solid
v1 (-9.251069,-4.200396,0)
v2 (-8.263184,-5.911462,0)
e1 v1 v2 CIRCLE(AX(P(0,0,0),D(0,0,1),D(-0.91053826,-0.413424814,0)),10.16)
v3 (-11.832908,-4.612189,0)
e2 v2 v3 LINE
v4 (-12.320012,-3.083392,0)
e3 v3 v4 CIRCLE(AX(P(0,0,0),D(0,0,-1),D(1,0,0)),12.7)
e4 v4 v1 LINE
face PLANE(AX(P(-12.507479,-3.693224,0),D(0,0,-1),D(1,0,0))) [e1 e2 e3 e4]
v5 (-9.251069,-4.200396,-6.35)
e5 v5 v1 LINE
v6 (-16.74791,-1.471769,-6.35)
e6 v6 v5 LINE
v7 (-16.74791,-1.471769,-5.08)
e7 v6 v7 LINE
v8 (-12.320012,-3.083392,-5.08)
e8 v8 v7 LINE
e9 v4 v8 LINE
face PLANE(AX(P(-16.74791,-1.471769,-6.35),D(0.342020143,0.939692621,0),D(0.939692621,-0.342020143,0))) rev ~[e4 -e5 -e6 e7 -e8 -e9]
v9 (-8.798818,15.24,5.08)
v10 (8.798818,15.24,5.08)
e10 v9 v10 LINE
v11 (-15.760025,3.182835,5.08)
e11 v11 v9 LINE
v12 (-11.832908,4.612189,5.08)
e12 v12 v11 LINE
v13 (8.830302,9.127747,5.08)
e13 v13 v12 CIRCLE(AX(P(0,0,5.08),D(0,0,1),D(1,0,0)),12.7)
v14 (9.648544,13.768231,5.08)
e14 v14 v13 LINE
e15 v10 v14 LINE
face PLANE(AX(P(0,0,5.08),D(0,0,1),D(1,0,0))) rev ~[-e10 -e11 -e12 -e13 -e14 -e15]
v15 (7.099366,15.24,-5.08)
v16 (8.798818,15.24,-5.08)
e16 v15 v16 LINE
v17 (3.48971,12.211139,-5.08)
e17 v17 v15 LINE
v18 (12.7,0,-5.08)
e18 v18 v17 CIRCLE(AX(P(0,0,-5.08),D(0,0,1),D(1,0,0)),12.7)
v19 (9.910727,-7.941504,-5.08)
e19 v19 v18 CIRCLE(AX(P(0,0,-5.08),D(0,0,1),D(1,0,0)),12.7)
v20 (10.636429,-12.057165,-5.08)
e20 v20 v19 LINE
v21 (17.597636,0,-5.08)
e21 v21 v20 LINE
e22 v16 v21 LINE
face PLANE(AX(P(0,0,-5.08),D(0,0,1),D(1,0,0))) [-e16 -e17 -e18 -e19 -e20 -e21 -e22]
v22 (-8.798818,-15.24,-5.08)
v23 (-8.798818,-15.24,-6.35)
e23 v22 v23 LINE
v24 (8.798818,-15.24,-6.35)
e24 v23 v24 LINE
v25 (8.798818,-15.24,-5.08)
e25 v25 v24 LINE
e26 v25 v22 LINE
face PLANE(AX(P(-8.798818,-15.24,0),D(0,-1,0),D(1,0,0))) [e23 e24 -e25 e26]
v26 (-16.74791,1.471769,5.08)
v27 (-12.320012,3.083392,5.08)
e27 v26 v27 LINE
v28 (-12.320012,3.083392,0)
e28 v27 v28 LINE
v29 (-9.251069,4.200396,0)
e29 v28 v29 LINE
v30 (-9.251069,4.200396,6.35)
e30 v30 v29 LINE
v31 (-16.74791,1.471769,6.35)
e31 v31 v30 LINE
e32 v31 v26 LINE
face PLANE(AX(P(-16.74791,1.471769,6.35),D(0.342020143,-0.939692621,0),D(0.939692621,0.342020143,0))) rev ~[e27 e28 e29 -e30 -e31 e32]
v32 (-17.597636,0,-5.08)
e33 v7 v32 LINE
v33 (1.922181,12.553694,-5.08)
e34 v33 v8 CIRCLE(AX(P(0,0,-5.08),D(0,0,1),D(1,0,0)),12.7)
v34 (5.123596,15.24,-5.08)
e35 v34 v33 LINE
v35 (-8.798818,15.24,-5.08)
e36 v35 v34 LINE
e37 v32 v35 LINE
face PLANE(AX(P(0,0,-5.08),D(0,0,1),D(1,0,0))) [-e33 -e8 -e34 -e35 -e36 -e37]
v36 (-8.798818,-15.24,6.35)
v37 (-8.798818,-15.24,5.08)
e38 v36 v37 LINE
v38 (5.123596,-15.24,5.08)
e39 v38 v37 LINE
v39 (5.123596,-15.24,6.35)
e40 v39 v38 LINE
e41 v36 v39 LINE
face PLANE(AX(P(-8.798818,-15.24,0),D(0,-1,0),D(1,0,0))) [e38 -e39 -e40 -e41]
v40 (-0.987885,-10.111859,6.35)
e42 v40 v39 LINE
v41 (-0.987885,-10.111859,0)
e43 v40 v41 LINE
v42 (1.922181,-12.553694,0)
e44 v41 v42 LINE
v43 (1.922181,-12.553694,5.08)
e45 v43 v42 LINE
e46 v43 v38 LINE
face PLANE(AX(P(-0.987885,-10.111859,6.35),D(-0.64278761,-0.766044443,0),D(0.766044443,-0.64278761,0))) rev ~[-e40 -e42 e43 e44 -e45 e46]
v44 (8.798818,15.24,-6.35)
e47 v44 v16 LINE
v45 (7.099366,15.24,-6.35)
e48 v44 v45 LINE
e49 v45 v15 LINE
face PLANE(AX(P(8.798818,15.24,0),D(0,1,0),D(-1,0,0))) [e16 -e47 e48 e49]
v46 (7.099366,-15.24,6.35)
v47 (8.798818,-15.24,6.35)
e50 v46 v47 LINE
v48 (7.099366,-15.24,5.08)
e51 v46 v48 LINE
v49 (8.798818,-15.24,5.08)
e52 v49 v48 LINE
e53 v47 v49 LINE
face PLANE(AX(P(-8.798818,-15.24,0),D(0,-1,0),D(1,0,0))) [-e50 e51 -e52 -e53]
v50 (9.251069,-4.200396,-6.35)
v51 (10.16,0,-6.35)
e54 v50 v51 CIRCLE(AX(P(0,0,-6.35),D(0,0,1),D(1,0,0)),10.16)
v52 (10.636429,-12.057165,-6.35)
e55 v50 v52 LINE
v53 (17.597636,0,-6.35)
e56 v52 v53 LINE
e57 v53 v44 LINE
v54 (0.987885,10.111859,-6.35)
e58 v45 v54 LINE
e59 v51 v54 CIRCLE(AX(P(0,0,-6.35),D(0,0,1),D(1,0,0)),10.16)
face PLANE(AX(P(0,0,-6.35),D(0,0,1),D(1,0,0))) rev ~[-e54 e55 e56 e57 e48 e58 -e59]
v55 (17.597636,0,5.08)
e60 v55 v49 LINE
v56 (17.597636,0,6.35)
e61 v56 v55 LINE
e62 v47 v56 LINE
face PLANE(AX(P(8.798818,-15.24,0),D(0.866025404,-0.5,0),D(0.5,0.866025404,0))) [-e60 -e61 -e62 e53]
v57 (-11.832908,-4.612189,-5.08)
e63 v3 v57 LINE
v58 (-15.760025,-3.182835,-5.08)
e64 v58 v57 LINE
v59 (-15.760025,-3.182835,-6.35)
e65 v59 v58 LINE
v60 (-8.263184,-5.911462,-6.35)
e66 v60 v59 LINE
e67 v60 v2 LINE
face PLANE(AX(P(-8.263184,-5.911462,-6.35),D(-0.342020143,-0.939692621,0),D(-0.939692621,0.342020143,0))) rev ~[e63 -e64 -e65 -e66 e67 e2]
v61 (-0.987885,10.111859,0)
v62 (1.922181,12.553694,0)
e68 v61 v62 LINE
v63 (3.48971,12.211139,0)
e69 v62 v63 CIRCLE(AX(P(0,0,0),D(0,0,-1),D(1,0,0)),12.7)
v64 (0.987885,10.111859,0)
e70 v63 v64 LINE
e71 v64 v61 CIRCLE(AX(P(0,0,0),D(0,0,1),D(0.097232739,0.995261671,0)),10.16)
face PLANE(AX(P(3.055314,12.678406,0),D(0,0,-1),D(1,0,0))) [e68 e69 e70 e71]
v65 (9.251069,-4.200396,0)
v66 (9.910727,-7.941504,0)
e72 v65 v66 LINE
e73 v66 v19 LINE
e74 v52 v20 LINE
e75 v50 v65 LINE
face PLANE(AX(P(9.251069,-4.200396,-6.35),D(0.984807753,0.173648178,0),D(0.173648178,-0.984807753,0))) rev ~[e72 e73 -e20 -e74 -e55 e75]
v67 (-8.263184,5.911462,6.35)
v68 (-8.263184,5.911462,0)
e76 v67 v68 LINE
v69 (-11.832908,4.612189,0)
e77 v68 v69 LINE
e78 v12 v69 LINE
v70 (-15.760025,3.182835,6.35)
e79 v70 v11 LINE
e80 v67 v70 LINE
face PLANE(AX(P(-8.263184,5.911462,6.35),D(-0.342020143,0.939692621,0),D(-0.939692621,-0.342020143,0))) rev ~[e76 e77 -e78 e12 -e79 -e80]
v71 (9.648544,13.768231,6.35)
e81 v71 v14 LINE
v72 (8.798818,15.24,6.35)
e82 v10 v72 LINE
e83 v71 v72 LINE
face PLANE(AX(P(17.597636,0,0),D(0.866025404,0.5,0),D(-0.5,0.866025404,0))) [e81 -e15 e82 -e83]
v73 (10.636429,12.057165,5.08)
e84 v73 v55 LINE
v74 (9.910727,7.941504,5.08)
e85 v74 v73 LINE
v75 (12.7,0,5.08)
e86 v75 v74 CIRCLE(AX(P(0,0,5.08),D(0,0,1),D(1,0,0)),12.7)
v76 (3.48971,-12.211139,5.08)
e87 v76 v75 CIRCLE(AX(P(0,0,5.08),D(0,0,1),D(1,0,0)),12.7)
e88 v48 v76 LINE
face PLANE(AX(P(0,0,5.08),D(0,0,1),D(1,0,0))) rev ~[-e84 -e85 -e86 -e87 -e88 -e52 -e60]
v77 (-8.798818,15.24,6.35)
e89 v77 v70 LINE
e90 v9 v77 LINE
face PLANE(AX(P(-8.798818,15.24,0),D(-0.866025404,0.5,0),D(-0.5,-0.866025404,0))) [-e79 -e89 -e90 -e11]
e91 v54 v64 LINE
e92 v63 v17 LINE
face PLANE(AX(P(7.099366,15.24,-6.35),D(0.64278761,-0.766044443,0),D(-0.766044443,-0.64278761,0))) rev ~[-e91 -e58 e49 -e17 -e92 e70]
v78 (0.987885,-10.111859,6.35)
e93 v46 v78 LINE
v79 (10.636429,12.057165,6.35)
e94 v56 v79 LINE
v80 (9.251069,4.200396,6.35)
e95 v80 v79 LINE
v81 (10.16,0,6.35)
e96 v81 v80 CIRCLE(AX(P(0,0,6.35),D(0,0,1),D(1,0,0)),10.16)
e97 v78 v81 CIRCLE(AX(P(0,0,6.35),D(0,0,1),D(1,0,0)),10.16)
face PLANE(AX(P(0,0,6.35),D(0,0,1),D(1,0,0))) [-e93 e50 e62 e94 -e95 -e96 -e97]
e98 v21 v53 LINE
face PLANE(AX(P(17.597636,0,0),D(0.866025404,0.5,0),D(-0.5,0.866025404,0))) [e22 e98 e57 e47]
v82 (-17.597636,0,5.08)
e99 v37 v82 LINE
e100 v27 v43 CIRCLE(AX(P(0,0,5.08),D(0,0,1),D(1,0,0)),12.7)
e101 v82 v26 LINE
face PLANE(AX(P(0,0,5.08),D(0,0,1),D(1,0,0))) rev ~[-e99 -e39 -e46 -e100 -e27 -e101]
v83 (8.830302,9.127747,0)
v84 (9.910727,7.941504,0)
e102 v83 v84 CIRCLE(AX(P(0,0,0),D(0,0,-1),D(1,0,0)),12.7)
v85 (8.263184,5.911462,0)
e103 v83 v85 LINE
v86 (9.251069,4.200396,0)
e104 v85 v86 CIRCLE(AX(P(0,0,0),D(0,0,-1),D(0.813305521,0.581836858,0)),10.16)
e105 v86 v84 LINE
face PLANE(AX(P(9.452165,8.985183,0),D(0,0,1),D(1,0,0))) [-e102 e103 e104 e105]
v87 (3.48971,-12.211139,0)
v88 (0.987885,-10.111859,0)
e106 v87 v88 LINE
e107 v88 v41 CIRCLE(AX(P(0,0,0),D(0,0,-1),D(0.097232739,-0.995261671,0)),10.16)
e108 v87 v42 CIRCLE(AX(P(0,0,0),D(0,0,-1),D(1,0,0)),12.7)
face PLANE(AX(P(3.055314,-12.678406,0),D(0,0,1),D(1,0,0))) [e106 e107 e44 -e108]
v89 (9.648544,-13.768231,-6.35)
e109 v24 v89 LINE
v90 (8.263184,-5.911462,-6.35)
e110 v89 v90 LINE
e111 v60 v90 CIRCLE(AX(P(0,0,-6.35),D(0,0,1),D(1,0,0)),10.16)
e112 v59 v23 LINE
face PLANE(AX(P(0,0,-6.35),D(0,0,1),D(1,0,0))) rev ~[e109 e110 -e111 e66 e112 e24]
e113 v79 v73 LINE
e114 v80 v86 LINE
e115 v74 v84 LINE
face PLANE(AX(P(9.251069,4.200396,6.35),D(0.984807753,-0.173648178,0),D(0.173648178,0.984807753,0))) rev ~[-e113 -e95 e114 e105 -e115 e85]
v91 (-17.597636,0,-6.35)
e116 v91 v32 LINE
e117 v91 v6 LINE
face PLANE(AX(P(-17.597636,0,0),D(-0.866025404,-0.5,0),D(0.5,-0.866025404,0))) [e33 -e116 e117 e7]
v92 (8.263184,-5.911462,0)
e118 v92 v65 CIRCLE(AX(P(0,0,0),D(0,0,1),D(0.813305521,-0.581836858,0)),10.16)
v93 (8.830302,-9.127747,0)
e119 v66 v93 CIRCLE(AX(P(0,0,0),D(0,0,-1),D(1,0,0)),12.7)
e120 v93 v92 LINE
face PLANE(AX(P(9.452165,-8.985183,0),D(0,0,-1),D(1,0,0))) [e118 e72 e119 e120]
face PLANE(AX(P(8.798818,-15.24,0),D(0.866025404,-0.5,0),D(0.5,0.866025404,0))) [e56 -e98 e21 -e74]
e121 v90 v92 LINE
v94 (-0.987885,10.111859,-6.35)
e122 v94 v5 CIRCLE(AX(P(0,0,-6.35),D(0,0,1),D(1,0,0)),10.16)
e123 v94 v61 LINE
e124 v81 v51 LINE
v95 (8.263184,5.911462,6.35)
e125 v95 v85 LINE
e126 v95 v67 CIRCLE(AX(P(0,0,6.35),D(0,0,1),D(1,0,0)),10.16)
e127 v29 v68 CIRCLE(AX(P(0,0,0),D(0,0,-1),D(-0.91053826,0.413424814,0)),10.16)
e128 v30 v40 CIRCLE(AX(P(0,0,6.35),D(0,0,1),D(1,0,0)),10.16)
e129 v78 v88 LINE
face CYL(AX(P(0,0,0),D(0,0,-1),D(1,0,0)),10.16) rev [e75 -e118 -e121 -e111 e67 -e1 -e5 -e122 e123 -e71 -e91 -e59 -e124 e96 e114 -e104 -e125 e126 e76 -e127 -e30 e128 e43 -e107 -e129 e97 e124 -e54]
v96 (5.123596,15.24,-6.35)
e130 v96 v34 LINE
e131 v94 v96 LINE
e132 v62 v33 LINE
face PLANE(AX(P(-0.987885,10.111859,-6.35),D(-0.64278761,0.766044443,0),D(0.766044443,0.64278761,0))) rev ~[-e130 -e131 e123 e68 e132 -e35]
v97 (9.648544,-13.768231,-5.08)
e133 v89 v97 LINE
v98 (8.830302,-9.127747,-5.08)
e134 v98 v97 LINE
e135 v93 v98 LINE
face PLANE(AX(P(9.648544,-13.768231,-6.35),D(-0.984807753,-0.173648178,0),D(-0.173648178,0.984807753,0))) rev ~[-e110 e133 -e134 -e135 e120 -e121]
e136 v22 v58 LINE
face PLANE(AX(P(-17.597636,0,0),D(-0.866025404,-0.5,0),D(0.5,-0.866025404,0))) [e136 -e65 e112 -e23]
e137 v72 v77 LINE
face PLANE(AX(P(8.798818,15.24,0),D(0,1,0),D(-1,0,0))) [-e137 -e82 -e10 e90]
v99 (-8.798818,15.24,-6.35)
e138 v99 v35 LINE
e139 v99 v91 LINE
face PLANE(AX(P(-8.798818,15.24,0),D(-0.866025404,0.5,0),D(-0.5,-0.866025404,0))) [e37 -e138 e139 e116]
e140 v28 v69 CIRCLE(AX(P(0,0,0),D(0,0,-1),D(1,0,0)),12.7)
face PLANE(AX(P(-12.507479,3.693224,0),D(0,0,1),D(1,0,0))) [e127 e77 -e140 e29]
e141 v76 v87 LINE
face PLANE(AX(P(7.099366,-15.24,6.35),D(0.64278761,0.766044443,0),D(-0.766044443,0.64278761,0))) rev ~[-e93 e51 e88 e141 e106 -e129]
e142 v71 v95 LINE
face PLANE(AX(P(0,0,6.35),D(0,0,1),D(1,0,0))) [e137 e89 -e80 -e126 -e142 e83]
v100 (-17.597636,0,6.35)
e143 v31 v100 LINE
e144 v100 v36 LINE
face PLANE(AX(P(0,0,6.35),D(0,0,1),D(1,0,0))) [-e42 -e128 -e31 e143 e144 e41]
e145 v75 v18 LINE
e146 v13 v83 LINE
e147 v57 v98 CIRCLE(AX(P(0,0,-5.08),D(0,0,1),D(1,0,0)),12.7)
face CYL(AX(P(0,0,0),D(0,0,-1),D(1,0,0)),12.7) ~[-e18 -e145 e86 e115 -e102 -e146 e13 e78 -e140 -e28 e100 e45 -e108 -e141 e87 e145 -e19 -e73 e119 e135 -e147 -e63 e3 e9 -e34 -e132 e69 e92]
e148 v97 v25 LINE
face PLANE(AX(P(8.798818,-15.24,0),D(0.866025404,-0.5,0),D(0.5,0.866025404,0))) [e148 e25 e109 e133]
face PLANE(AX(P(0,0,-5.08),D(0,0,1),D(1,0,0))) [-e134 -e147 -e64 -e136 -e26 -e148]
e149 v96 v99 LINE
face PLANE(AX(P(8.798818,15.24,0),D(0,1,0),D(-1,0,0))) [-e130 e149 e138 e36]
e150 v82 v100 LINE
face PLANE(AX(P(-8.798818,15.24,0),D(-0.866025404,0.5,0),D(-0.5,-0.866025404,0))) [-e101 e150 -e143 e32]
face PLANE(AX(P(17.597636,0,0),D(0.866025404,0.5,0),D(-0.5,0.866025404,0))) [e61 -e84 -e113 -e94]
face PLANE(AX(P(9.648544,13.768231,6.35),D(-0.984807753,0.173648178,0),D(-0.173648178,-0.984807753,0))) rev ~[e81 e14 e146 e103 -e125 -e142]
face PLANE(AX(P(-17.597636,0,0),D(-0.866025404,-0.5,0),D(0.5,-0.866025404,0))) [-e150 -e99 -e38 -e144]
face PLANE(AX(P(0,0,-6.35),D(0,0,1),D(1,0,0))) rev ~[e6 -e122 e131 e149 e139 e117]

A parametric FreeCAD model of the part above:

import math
import FreeCAD as App
import Part
import Sketcher
from FreeCAD import Vector
Q = App.Units.Quantity


def add_polygon(sketch, points):
    """Adds a closed chain of lines whose ends are joined by coincident constraints."""
    first, n = sketch.GeometryCount, len(points)
    for a, b in zip(points, points[1:] + points[:1]):
        sketch.addGeometry(Part.LineSegment(App.Vector(*a, 0), App.Vector(*b, 0)), False)
    for i in range(n):
        sketch.addConstraint(Sketcher.Constraint("Coincident", first + i, 2, first + (i + 1) % n, 1))

doc = App.newDocument("Part")
body = doc.addObject("PartDesign::Body", "Body")

sketch1 = doc.addObject("Sketcher::SketchObject", "Sketch")
body.addObject(sketch1)
sketch1.AttachmentSupport = (doc.XY_Plane, [""])
sketch1.MapMode = "FlatFace"
add_polygon(sketch1, [(18, 0), (9, 15), (-9, 15), (-18, 0), (-9, -15), (9, -15)])
sketch1.addGeometry(Part.Circle(Vector(0, 0, 0), Vector(0, 0, 1), 10), False)
sketch1.addConstraint(Sketcher.Constraint("Horizontal", 1))
sketch1.addConstraint(Sketcher.Constraint("Horizontal", 4))
sketch1.addConstraint(Sketcher.Constraint("Coincident", 6, 3, -1, 1))
sketch1.addConstraint(Sketcher.Constraint("Symmetric", 0, 2, 3, 2, -1, 1))
sketch1.addConstraint(Sketcher.Constraint("Symmetric", 2, 2, 5, 2, -1, 1))
sketch1.addConstraint(Sketcher.Constraint("PointOnObject", 2, 2, -1))
sketch1.addConstraint(Sketcher.Constraint("Parallel", 2, 5))
sketch1.addConstraint(Sketcher.Constraint("Vertical", 1, 2, 3, 2))
sketch1.addConstraint(Sketcher.Constraint("Diameter", 6, Q("0.8 in")))
sketch1.addConstraint(Sketcher.Constraint("Angle", 0, Q("120 deg")))
sketch1.addConstraint(Sketcher.Constraint("DistanceY", -1, 1, 0, 2, Q("0.6 in")))
sketch1.addConstraint(Sketcher.Constraint("DistanceX", 1, 2, 1, 1, Q("17.597636 mm")))
pad1 = doc.addObject("PartDesign::Pad", "Pad")
body.addObject(pad1)
pad1.Profile = sketch1
pad1.Length = Q("0.5 in")
pad1.Midplane = True

sketch2 = doc.addObject("Sketcher::SketchObject", "Sketch001")
body.addObject(sketch2)
sketch2.AttachmentSupport = (doc.XY_Plane, [""])
sketch2.MapMode = "FlatFace"
sketch2.addGeometry(Part.Circle(Vector(0, 0, 0), Vector(0, 0, 1), 18), False)
sketch2.addGeometry(Part.Circle(Vector(0, 0, 0), Vector(0, 0, 1), 13), False)
sketch2.addConstraint(Sketcher.Constraint("Coincident", 0, 3, -1, 1))
sketch2.addConstraint(Sketcher.Constraint("Coincident", 1, 3, -1, 1))
sketch2.addConstraint(Sketcher.Constraint("Diameter", 1, Q("1 in")))
sketch2.addConstraint(Sketcher.Constraint("Diameter", 0, Q("35.195272 mm")))
pocket1 = doc.addObject("PartDesign::Pocket", "Pocket")
body.addObject(pocket1)
pocket1.Profile = sketch2
pocket1.Length = Q("0.4 in")
pocket1.Midplane = True

sketch3 = doc.addObject("Sketcher::SketchObject", "Sketch002")
body.addObject(sketch3)
sketch3.AttachmentSupport = (doc.XY_Plane, [""])
sketch3.MapMode = "FlatFace"
sketch3.AttachmentOffset = App.Placement(Vector(0, 0, 0.25 * 25.4), App.Rotation())
sketch3.addGeometry(Part.LineSegment(Vector(-8.3, 5.9, 0), Vector(-15.8, 3.2, 0)), False)
sketch3.addGeometry(Part.LineSegment(Vector(-15.8, 3.2, 0), Vector(-16.7, 1.5, 0)), False)
sketch3.addGeometry(Part.LineSegment(Vector(-16.7, 1.5, 0), Vector(-9.3, 4.2, 0)), False)
sketch3.addGeometry(Part.ArcOfCircle(Part.Circle(Vector(0, 0, 0), Vector(0, 0, 1), 10.2), math.radians(144.42), math.radians(155.58)), False)
sketch3.addGeometry(Part.ArcOfCircle(Part.Circle(Vector(0, 0, 0), Vector(0, 0, 1), 10.2), math.radians(-95.58), math.radians(-84.42)), False)
sketch3.addGeometry(Part.LineSegment(Vector(-1, -10.1, 0), Vector(5.1, -15.2, 0)), False)
sketch3.addGeometry(Part.LineSegment(Vector(5.1, -15.2, 0), Vector(7.1, -15.2, 0)), False)
sketch3.addGeometry(Part.LineSegment(Vector(7.1, -15.2, 0), Vector(1, -10.1, 0)), False)
sketch3.addGeometry(Part.LineSegment(Vector(9.6, 13.8, 0), Vector(8.3, 5.9, 0)), False)
sketch3.addGeometry(Part.ArcOfCircle(Part.Circle(Vector(0, 0, 0), Vector(0, 0, 1), 10.2), math.radians(24.42), math.radians(35.58)), False)
sketch3.addGeometry(Part.LineSegment(Vector(9.3, 4.2, 0), Vector(10.6, 12.1, 0)), False)
sketch3.addGeometry(Part.LineSegment(Vector(10.6, 12.1, 0), Vector(9.6, 13.8, 0)), False)
sketch3.addConstraint(Sketcher.Constraint("Coincident", 0, 2, 1, 1))
sketch3.addConstraint(Sketcher.Constraint("Coincident", 1, 2, 2, 1))
sketch3.addConstraint(Sketcher.Constraint("Coincident", 2, 2, 3, 2))
sketch3.addConstraint(Sketcher.Constraint("Coincident", 3, 1, 0, 1))
sketch3.addConstraint(Sketcher.Constraint("Coincident", 4, 1, 5, 1))
sketch3.addConstraint(Sketcher.Constraint("Coincident", 5, 2, 6, 1))
sketch3.addConstraint(Sketcher.Constraint("Coincident", 6, 2, 7, 1))
sketch3.addConstraint(Sketcher.Constraint("Coincident", 7, 2, 4, 2))
sketch3.addConstraint(Sketcher.Constraint("Coincident", 8, 2, 9, 2))
sketch3.addConstraint(Sketcher.Constraint("Coincident", 9, 1, 10, 1))
sketch3.addConstraint(Sketcher.Constraint("Coincident", 10, 2, 11, 1))
sketch3.addConstraint(Sketcher.Constraint("Coincident", 11, 2, 8, 1))
sketch3.addConstraint(Sketcher.Constraint("Horizontal", 6))
sketch3.addConstraint(Sketcher.Constraint("Coincident", 3, 3, -1, 1))
sketch3.addConstraint(Sketcher.Constraint("Coincident", 4, 3, -1, 1))
sketch3.addConstraint(Sketcher.Constraint("Coincident", 9, 3, -1, 1))
sketch3.addConstraint(Sketcher.Constraint("Equal", 3, 4))
sketch3.addConstraint(Sketcher.Constraint("Equal", 4, 9))
sketch3.addConstraint(Sketcher.Constraint("Parallel", 0, 2))
sketch3.addConstraint(Sketcher.Constraint("Parallel", 5, 7))
sketch3.addConstraint(Sketcher.Constraint("Parallel", 8, 10))
sketch3.addConstraint(Sketcher.Constraint("Horizontal", 4, 1, 7, 2))
sketch3.addConstraint(Sketcher.Constraint("Horizontal", 3, 1, 8, 2))
sketch3.addConstraint(Sketcher.Constraint("Horizontal", 2, 2, 9, 1))
sketch3.addConstraint(Sketcher.Constraint("Equal", 0, 2))
sketch3.addConstraint(Sketcher.Constraint("Equal", 2, 5))
sketch3.addConstraint(Sketcher.Constraint("Equal", 7, 8))
sketch3.addConstraint(Sketcher.Constraint("Equal", 8, 10))
sketch3.addConstraint(Sketcher.Constraint("Radius", 3, Q("0.4 in")))
sketch3.addConstraint(Sketcher.Constraint("Angle", 0, Q("-160 deg")))
sketch3.addConstraint(Sketcher.Constraint("Angle", 1, Q("-120 deg")))
sketch3.addConstraint(Sketcher.Constraint("Angle", 5, Q("-40 deg")))
sketch3.addConstraint(Sketcher.Constraint("Angle", 8, Q("-100 deg")))
sketch3.addConstraint(Sketcher.Constraint("DistanceY", 5, 2, -1, 1, Q("0.6 in")))
sketch3.addConstraint(Sketcher.Constraint("DistanceX", 6, 1, 6, 2, Q("1.975769 mm")))
sketch3.addConstraint(Sketcher.Constraint("DistanceX", 3, 1, 4, 1, Q("7.275299 mm")))
pocket2 = doc.addObject("PartDesign::Pocket", "Pocket001")
body.addObject(pocket2)
pocket2.Profile = sketch3
pocket2.Length = Q("0.25 in")

sketch4 = doc.addObject("Sketcher::SketchObject", "Sketch003")
body.addObject(sketch4)
sketch4.AttachmentSupport = (doc.XY_Plane, [""])
sketch4.MapMode = "FlatFace"
sketch4.AttachmentOffset = App.Placement(Vector(0, 0, -0.25 * 25.4), App.Rotation())
sketch4.addGeometry(Part.LineSegment(Vector(9.6, -13.8, 0), Vector(8.3, -5.9, 0)), False)
sketch4.addGeometry(Part.ArcOfCircle(Part.Circle(Vector(0, 0, 0), Vector(0, 0, 1), 10.2), math.radians(-35.58), math.radians(-24.42)), False)
sketch4.addGeometry(Part.LineSegment(Vector(9.3, -4.2, 0), Vector(10.6, -12.1, 0)), False)
sketch4.addGeometry(Part.LineSegment(Vector(10.6, -12.1, 0), Vector(9.6, -13.8, 0)), False)
sketch4.addGeometry(Part.LineSegment(Vector(-8.3, -5.9, 0), Vector(-15.8, -3.2, 0)), False)
sketch4.addGeometry(Part.LineSegment(Vector(-15.8, -3.2, 0), Vector(-16.7, -1.5, 0)), False)
sketch4.addGeometry(Part.LineSegment(Vector(-16.7, -1.5, 0), Vector(-9.3, -4.2, 0)), False)
sketch4.addGeometry(Part.ArcOfCircle(Part.Circle(Vector(0, 0, 0), Vector(0, 0, 1), 10.2), math.radians(-155.58), math.radians(-144.42)), False)
sketch4.addGeometry(Part.ArcOfCircle(Part.Circle(Vector(0, 0, 0), Vector(0, 0, 1), 10.2), math.radians(84.42), math.radians(95.58)), False)
sketch4.addGeometry(Part.LineSegment(Vector(-1, 10.1, 0), Vector(5.1, 15.2, 0)), False)
sketch4.addGeometry(Part.LineSegment(Vector(5.1, 15.2, 0), Vector(7.1, 15.2, 0)), False)
sketch4.addGeometry(Part.LineSegment(Vector(7.1, 15.2, 0), Vector(1, 10.1, 0)), False)
sketch4.addConstraint(Sketcher.Constraint("Coincident", 0, 2, 1, 1))
sketch4.addConstraint(Sketcher.Constraint("Coincident", 1, 2, 2, 1))
sketch4.addConstraint(Sketcher.Constraint("Coincident", 2, 2, 3, 1))
sketch4.addConstraint(Sketcher.Constraint("Coincident", 3, 2, 0, 1))
sketch4.addConstraint(Sketcher.Constraint("Coincident", 4, 2, 5, 1))
sketch4.addConstraint(Sketcher.Constraint("Coincident", 5, 2, 6, 1))
sketch4.addConstraint(Sketcher.Constraint("Coincident", 6, 2, 7, 1))
sketch4.addConstraint(Sketcher.Constraint("Coincident", 7, 2, 4, 1))
sketch4.addConstraint(Sketcher.Constraint("Coincident", 8, 2, 9, 1))
sketch4.addConstraint(Sketcher.Constraint("Coincident", 9, 2, 10, 1))
sketch4.addConstraint(Sketcher.Constraint("Coincident", 10, 2, 11, 1))
sketch4.addConstraint(Sketcher.Constraint("Coincident", 11, 2, 8, 1))
sketch4.addConstraint(Sketcher.Constraint("Horizontal", 10))
sketch4.addConstraint(Sketcher.Constraint("Coincident", 1, 3, -1, 1))
sketch4.addConstraint(Sketcher.Constraint("Coincident", 7, 3, -1, 1))
sketch4.addConstraint(Sketcher.Constraint("Coincident", 8, 3, -1, 1))
sketch4.addConstraint(Sketcher.Constraint("Equal", 1, 7))
sketch4.addConstraint(Sketcher.Constraint("Equal", 7, 8))
sketch4.addConstraint(Sketcher.Constraint("Parallel", 0, 2))
sketch4.addConstraint(Sketcher.Constraint("Parallel", 4, 6))
sketch4.addConstraint(Sketcher.Constraint("Parallel", 9, 11))
sketch4.addConstraint(Sketcher.Constraint("Horizontal", 1, 2, 6, 2))
sketch4.addConstraint(Sketcher.Constraint("Horizontal", 0, 2, 7, 2))
sketch4.addConstraint(Sketcher.Constraint("Horizontal", 8, 2, 11, 2))
sketch4.addConstraint(Sketcher.Constraint("Equal", 0, 2))
sketch4.addConstraint(Sketcher.Constraint("Equal", 2, 4))
sketch4.addConstraint(Sketcher.Constraint("Equal", 3, 5))
sketch4.addConstraint(Sketcher.Constraint("Equal", 6, 9))
sketch4.addConstraint(Sketcher.Constraint("Radius", 1, Q("0.4 in")))
sketch4.addConstraint(Sketcher.Constraint("Angle", 0, Q("100 deg")))
sketch4.addConstraint(Sketcher.Constraint("Angle", 3, Q("-120 deg")))
sketch4.addConstraint(Sketcher.Constraint("Angle", 4, Q("160 deg")))
sketch4.addConstraint(Sketcher.Constraint("Angle", 9, Q("40 deg")))
sketch4.addConstraint(Sketcher.Constraint("DistanceY", -1, 1, 9, 2, Q("0.6 in")))
sketch4.addConstraint(Sketcher.Constraint("DistanceX", 10, 1, 10, 2, Q("1.975769 mm")))
sketch4.addConstraint(Sketcher.Constraint("DistanceX", 7, 2, 8, 2, Q("7.275299 mm")))
pocket3 = doc.addObject("PartDesign::Pocket", "Pocket002")
body.addObject(pocket3)
pocket3.Profile = sketch4
pocket3.Length = Q("0.25 in")
pocket3.Reversed = True

doc.recompute()
